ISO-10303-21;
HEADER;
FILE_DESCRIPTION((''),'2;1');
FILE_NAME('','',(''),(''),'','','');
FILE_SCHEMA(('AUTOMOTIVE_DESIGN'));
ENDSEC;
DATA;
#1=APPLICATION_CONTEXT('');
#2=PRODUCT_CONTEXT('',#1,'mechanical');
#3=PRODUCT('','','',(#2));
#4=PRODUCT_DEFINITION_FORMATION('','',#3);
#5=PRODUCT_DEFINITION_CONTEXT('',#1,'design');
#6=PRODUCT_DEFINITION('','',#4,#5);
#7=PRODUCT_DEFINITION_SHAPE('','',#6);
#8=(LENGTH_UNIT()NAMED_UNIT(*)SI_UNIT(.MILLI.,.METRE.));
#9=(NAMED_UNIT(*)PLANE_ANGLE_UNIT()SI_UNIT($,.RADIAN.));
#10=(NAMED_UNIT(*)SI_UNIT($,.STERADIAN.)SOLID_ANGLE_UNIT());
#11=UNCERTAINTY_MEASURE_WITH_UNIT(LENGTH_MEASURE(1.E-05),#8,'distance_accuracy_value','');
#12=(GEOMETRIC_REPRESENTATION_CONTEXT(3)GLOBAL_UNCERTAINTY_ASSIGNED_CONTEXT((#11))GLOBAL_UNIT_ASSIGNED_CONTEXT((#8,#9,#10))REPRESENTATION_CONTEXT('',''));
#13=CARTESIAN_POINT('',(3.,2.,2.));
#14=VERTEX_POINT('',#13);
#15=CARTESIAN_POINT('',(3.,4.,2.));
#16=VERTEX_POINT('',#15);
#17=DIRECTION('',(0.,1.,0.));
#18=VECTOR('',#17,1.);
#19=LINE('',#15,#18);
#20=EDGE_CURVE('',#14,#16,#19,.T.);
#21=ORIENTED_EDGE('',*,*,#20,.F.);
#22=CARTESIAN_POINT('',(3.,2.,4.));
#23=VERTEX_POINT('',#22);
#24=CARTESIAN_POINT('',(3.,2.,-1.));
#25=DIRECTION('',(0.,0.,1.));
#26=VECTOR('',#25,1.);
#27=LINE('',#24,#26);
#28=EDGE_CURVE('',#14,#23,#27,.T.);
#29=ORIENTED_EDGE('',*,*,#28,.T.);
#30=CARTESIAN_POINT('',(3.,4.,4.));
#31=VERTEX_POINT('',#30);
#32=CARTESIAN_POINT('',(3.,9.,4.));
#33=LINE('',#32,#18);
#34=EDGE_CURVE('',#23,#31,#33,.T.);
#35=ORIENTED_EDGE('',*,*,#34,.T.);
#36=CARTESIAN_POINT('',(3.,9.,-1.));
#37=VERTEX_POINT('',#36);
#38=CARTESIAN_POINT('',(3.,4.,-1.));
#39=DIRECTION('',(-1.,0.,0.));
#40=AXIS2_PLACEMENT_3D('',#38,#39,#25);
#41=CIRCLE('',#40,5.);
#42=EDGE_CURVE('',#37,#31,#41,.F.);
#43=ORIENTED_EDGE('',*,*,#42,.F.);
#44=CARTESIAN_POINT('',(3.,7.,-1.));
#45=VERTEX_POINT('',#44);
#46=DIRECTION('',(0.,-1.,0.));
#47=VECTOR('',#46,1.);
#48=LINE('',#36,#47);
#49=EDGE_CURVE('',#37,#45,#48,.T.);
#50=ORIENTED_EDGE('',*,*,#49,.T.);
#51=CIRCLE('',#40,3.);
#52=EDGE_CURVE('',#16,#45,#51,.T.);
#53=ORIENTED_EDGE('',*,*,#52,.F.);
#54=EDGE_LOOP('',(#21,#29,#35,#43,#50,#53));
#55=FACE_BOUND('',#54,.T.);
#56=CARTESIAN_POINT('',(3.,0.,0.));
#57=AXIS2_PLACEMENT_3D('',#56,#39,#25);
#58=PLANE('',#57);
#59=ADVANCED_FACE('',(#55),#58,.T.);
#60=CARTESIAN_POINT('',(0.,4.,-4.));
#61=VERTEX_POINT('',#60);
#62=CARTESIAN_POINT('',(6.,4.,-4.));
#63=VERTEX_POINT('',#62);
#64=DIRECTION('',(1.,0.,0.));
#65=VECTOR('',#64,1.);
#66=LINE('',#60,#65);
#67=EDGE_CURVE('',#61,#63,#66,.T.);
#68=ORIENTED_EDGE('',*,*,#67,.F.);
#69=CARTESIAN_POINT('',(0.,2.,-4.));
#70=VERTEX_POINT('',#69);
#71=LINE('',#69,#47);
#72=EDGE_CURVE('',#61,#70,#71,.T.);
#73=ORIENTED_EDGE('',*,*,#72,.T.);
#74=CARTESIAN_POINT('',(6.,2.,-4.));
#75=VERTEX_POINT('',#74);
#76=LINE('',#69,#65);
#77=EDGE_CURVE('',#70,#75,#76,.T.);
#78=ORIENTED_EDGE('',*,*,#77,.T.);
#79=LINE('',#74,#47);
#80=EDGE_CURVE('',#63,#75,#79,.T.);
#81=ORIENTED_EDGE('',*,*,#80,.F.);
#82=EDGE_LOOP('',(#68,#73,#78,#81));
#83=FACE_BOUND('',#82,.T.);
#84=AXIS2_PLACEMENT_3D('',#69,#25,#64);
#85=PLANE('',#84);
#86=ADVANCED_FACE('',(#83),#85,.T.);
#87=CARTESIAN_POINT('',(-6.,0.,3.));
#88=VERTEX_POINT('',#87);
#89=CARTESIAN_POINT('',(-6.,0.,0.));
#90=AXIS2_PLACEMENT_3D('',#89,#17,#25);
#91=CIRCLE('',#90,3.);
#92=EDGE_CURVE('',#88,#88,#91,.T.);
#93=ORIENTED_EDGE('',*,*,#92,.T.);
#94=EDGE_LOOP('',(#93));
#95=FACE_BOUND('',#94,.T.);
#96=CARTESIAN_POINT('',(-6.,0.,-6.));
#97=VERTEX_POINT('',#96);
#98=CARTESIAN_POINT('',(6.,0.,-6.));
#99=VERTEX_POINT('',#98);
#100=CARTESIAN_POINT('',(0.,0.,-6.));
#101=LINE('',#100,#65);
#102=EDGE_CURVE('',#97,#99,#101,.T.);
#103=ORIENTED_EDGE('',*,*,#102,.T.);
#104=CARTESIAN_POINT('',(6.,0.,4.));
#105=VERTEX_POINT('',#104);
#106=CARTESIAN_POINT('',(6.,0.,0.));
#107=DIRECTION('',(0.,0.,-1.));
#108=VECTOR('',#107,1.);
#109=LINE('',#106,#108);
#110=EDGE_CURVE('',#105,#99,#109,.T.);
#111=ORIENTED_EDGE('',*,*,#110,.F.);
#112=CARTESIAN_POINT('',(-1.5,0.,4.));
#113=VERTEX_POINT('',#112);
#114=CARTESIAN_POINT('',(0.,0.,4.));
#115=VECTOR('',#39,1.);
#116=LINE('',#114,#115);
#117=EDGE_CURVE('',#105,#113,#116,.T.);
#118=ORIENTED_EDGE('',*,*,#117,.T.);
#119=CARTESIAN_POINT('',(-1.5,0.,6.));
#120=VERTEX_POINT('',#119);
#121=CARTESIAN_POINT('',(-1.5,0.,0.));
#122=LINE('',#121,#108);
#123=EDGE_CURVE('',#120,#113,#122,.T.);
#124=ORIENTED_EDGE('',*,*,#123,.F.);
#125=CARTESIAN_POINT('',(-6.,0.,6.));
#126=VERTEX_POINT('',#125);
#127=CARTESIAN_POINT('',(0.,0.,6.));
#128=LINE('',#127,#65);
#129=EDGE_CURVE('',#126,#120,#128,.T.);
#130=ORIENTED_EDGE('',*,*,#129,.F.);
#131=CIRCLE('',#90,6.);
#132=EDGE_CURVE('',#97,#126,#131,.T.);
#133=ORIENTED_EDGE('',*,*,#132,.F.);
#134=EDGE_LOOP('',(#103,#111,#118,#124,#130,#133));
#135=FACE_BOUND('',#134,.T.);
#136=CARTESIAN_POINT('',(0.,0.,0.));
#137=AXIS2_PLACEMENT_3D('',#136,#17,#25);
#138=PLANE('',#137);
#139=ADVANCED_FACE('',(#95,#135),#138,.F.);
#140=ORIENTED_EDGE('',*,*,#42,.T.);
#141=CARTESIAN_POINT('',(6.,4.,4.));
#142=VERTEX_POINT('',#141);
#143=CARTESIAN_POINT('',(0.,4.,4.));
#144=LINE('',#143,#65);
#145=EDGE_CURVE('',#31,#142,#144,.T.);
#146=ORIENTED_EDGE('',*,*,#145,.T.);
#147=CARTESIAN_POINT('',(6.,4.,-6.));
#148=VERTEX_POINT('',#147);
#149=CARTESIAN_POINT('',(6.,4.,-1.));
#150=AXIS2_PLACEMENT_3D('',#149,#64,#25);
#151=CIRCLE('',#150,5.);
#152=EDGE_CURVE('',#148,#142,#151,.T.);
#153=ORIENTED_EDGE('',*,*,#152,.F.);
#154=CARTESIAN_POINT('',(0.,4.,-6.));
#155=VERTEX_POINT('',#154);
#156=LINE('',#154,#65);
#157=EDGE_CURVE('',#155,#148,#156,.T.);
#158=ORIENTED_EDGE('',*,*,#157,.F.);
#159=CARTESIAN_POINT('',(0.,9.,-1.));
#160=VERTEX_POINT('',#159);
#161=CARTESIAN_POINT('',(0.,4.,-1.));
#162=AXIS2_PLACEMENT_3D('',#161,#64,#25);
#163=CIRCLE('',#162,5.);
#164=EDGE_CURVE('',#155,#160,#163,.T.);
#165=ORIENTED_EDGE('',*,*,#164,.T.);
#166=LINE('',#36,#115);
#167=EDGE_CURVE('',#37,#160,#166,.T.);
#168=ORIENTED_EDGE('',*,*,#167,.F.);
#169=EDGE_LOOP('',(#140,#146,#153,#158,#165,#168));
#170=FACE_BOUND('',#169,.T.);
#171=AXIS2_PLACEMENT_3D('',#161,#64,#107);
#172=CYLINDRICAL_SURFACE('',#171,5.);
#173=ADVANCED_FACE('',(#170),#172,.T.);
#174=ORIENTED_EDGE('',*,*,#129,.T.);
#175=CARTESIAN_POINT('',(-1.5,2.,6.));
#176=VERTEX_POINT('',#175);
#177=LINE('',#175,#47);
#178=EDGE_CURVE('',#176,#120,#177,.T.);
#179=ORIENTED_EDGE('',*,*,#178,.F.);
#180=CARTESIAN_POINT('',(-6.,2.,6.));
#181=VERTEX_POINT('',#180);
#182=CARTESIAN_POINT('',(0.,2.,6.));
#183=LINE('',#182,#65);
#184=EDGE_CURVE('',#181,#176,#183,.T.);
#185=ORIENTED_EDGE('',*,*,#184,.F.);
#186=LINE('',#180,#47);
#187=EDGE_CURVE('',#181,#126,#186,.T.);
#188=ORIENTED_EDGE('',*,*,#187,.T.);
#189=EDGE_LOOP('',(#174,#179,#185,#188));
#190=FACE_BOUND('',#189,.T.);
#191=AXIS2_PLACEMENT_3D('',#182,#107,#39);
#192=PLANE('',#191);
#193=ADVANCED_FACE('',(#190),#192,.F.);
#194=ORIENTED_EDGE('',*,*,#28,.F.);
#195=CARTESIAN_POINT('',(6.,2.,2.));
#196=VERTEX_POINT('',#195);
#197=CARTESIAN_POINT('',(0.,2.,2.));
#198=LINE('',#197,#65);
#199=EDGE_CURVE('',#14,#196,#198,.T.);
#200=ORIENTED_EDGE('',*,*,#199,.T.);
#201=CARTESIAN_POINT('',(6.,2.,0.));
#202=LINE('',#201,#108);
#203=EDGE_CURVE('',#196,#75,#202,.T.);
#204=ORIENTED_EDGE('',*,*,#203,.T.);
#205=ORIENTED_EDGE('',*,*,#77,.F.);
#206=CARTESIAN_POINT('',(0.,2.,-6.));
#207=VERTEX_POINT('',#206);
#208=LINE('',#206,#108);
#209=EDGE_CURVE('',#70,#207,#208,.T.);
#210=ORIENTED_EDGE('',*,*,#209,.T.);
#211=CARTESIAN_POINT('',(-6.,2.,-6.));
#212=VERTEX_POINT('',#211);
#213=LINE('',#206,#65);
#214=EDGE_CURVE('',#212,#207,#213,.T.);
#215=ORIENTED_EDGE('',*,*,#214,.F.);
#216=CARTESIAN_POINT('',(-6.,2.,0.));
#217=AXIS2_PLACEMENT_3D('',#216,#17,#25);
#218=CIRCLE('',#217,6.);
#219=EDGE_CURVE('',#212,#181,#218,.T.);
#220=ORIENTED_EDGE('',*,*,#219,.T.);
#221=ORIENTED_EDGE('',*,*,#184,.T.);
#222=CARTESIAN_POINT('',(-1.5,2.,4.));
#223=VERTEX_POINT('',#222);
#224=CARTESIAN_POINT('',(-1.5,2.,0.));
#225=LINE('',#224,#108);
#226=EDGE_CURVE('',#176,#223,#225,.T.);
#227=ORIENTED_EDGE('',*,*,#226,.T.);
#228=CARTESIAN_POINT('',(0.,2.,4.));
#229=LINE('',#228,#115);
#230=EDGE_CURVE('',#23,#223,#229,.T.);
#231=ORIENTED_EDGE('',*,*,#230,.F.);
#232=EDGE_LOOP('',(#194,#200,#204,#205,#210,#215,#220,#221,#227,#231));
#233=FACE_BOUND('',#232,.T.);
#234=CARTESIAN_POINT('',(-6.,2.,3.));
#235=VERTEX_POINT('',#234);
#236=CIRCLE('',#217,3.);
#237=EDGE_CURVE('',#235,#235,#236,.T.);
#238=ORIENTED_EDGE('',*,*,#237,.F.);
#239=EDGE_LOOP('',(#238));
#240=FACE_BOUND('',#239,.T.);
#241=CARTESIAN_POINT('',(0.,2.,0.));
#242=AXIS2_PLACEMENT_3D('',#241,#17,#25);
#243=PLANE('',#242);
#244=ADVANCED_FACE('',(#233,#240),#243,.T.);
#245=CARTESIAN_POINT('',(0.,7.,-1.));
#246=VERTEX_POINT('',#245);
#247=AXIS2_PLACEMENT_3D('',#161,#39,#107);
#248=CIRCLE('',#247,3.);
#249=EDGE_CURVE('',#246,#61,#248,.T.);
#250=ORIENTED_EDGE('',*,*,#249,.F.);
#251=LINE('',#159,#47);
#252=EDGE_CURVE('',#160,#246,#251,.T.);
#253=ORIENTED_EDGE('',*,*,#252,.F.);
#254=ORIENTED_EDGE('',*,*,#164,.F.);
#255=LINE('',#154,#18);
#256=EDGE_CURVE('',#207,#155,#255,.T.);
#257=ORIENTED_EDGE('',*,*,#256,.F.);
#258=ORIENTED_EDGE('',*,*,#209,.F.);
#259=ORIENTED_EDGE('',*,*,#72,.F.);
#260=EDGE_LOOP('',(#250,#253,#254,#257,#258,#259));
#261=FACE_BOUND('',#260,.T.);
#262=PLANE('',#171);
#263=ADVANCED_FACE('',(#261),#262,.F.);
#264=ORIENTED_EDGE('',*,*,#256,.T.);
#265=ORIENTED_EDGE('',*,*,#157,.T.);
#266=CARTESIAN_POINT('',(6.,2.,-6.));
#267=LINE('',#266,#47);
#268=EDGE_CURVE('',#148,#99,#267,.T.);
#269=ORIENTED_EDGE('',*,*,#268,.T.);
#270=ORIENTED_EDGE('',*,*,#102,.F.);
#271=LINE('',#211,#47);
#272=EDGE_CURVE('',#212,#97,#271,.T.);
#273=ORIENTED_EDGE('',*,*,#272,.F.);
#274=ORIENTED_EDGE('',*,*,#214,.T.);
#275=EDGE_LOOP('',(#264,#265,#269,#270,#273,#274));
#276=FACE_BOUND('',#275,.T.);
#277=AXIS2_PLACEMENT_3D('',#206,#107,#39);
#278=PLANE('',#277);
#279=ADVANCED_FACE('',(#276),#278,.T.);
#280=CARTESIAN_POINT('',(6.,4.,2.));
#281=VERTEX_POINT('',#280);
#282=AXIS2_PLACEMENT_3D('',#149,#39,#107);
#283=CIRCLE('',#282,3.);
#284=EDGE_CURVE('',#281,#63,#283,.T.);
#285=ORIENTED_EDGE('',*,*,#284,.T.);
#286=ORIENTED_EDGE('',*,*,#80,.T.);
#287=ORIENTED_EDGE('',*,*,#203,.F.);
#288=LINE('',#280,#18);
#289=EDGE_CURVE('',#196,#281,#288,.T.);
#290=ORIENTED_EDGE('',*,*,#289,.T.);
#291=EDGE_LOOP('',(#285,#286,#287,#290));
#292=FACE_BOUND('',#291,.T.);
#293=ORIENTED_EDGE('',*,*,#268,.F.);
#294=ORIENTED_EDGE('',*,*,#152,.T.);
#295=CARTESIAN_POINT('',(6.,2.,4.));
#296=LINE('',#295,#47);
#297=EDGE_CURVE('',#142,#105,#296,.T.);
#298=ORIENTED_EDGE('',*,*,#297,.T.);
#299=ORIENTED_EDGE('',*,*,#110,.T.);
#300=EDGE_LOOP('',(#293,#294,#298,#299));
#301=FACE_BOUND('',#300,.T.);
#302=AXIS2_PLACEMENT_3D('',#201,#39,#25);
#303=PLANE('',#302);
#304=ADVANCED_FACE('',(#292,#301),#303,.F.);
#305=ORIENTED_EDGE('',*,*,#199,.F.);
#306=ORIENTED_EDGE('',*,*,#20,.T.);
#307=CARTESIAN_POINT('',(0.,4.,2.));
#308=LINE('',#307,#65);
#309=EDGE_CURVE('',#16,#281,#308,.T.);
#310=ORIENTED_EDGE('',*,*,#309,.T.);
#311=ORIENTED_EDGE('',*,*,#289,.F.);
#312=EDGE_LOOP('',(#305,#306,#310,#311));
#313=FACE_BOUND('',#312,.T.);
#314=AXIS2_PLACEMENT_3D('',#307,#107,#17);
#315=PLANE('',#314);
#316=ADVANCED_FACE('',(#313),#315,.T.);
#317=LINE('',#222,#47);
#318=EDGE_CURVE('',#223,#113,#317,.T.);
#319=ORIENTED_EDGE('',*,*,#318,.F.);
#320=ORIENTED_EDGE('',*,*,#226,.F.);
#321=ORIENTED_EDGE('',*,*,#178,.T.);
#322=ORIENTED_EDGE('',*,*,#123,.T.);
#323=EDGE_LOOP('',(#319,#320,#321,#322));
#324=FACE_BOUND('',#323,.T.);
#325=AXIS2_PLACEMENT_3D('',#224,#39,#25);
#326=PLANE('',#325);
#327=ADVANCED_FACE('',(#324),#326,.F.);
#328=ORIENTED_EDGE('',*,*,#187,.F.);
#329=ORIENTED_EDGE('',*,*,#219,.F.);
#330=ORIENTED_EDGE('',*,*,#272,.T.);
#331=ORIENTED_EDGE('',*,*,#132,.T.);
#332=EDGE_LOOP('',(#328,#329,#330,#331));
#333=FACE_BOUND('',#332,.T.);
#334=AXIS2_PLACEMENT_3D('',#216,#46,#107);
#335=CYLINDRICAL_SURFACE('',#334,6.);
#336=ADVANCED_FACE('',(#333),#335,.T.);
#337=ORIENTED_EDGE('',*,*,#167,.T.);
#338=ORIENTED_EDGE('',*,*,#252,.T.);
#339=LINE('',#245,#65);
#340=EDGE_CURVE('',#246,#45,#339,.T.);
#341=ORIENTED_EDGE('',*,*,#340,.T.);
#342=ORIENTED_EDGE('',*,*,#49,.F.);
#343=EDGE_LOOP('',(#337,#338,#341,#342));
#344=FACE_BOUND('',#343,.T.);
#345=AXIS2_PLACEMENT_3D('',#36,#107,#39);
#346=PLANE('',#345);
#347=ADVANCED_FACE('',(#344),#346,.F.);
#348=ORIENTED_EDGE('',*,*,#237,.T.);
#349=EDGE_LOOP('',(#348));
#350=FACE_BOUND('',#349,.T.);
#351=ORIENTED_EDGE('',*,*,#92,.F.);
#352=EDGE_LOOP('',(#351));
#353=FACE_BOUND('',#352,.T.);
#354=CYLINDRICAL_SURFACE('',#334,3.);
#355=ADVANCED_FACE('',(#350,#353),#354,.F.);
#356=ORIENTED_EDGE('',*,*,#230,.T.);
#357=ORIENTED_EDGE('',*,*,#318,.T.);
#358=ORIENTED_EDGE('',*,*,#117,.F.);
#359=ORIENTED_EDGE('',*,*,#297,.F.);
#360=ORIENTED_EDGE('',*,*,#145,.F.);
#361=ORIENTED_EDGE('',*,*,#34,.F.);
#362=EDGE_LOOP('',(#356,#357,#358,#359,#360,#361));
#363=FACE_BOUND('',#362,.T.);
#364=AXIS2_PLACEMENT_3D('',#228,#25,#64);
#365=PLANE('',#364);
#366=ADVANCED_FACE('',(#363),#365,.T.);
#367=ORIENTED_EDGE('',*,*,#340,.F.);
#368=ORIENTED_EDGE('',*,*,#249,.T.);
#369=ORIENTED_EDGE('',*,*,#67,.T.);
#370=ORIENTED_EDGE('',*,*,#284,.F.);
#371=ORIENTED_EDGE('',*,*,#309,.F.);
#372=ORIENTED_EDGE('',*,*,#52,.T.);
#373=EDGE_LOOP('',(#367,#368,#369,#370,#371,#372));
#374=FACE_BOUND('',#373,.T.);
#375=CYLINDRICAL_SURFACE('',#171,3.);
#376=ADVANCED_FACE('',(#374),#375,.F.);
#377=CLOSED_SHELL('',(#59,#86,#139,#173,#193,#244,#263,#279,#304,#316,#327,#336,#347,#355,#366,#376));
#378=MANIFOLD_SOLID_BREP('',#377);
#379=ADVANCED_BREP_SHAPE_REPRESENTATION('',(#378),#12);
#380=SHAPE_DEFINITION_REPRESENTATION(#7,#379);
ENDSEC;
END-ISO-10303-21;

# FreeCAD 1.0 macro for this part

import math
import FreeCAD as App
import Part
import Sketcher

V = App.Vector

doc = App.newDocument("Part")
body = doc.addObject("PartDesign::Body", "Body")

# Sketch on XZ plane
sketch1 = body.newObject("Sketcher::SketchObject", "Sketch")
sketch1.AttachmentSupport = (doc.getObject("XZ_Plane"), [""])
sketch1.MapMode = "FlatFace"
sketch1.addGeometry([
    Part.LineSegment(V(6, -6, 0), V(-6, -6, 0)),  # 0
    Part.ArcOfCircle(Part.Circle(V(-6, 0, 0), V(0, 0, 1), 6), math.radians(90), math.radians(270)),  # 1
    Part.LineSegment(V(-6, 6, 0), V(-1.5, 6, 0)),  # 2
    Part.LineSegment(V(-1.5, 6, 0), V(-1.5, 4, 0)),  # 3
    Part.LineSegment(V(-1.5, 4, 0), V(6, 4, 0)),  # 4
    Part.LineSegment(V(6, 4, 0), V(6, -6, 0)),  # 5
    Part.Circle(V(-6, 0, 0), V(0, 0, 1), 3),  # 6
], False)
sketch1.addConstraint([
    Sketcher.Constraint("Tangent", 0, 2, 1, 2),
    Sketcher.Constraint("Tangent", 1, 1, 2, 1),
    Sketcher.Constraint("Coincident", 2, 2, 3, 1),
    Sketcher.Constraint("Coincident", 3, 2, 4, 1),
    Sketcher.Constraint("Coincident", 4, 2, 5, 1),
    Sketcher.Constraint("Coincident", 5, 2, 0, 1),
    Sketcher.Constraint("Horizontal", 0),
    Sketcher.Constraint("Horizontal", 2),
    Sketcher.Constraint("Vertical", 3),
    Sketcher.Constraint("Horizontal", 4),
    Sketcher.Constraint("Vertical", 5),
    Sketcher.Constraint("Coincident", 6, 3, 1, 3),
    Sketcher.Constraint("Symmetric", 1, 1, 5, 2, -1, 1),
    Sketcher.Constraint("Diameter", 6, 6.0),
    Sketcher.Constraint("Radius", 1, 6.0),
    Sketcher.Constraint("DistanceX", 0, 2, 0, 1, 12.0),
    Sketcher.Constraint("DistanceY", 3, 2, 3, 1, 2.0),
    Sketcher.Constraint("DistanceX", 2, 1, 2, 2, 4.5),
])
pad1 = body.newObject("PartDesign::Pad", "Pad")
pad1.Profile = sketch1
pad1.Length = 2
pad1.Reversed = True

# Sketch on YZ plane
sketch2 = body.newObject("Sketcher::SketchObject", "Sketch001")
sketch2.AttachmentSupport = (doc.getObject("YZ_Plane"), [""])
sketch2.MapMode = "FlatFace"
sketch2.AttachmentOffset = App.Placement(V(0, 0, 6), App.Rotation())
sketch2.addGeometry([
    Part.LineSegment(V(4, -4, 0), V(2, -4, 0)),  # 0
    Part.LineSegment(V(2, -4, 0), V(2, -6, 0)),  # 1
    Part.LineSegment(V(2, -6, 0), V(4, -6, 0)),  # 2
    Part.ArcOfCircle(Part.Circle(V(4, -1, 0), V(0, 0, 1), 5), math.radians(-90), math.radians(90)),  # 3
    Part.LineSegment(V(4, 4, 0), V(2, 4, 0)),  # 4
    Part.LineSegment(V(2, 4, 0), V(2, 2, 0)),  # 5
    Part.LineSegment(V(2, 2, 0), V(4, 2, 0)),  # 6
    Part.ArcOfCircle(Part.Circle(V(4, -1, 0), V(0, 0, 1), 3), math.radians(-90), math.radians(90)),  # 7
], False)
sketch2.addConstraint([
    Sketcher.Constraint("Coincident", 0, 2, 1, 1),
    Sketcher.Constraint("Coincident", 1, 2, 2, 1),
    Sketcher.Constraint("Tangent", 2, 2, 3, 1),
    Sketcher.Constraint("Tangent", 3, 2, 4, 1),
    Sketcher.Constraint("Coincident", 4, 2, 5, 1),
    Sketcher.Constraint("Coincident", 5, 2, 6, 1),
    Sketcher.Constraint("Tangent", 6, 2, 7, 2),
    Sketcher.Constraint("Tangent", 7, 1, 0, 1),
    Sketcher.Constraint("Horizontal", 0),
    Sketcher.Constraint("Vertical", 1),
    Sketcher.Constraint("Horizontal", 2),
    Sketcher.Constraint("Horizontal", 4),
    Sketcher.Constraint("Vertical", 5),
    Sketcher.Constraint("Horizontal", 6),
    Sketcher.Constraint("Coincident", 7, 3, 3, 3),
    Sketcher.Constraint("Symmetric", 0, 2, 4, 2, -1),
    Sketcher.Constraint("Equal", 6, 1),
    Sketcher.Constraint("Radius", 3, 5.0),
    Sketcher.Constraint("Radius", 7, 3.0),
    Sketcher.Constraint("DistanceX", -1, 1, 3, 3, 4.0),
])
pad2 = body.newObject("PartDesign::Pad", "Pad001")
pad2.Profile = sketch2
pad2.Length = 6
pad2.Reversed = True

# Sketch on YZ plane
sketch3 = body.newObject("Sketcher::SketchObject", "Sketch002")
sketch3.AttachmentSupport = (doc.getObject("YZ_Plane"), [""])
sketch3.MapMode = "FlatFace"
sketch3.addGeometry([
    Part.LineSegment(V(9, -1, 0), V(2, -1, 0)),
    Part.LineSegment(V(2, -1, 0), V(2, 4, 0)),
    Part.LineSegment(V(2, 4, 0), V(9, 4, 0)),
    Part.LineSegment(V(9, 4, 0), V(9, -1, 0)),
], False)
sketch3.addConstraint([
    Sketcher.Constraint("Coincident", 0, 2, 1, 1),
    Sketcher.Constraint("Coincident", 1, 2, 2, 1),
    Sketcher.Constraint("Coincident", 2, 2, 3, 1),
    Sketcher.Constraint("Coincident", 3, 2, 0, 1),
    Sketcher.Constraint("Horizontal", 0),
    Sketcher.Constraint("Vertical", 1),
    Sketcher.Constraint("Horizontal", 2),
    Sketcher.Constraint("Vertical", 3),
    Sketcher.Constraint("DistanceX", 0, 2, 0, 1, 7.0),
    Sketcher.Constraint("DistanceY", 1, 1, 1, 2, 5.0),
    Sketcher.Constraint("DistanceX", -1, 1, 0, 2, 2.0),
    Sketcher.Constraint("DistanceY", 0, 2, -1, 1, 1.0),
])
pocket1 = body.newObject("PartDesign::Pocket", "Pocket")
pocket1.Profile = sketch3
pocket1.Length = 3
pocket1.Reversed = True

doc.recompute()
